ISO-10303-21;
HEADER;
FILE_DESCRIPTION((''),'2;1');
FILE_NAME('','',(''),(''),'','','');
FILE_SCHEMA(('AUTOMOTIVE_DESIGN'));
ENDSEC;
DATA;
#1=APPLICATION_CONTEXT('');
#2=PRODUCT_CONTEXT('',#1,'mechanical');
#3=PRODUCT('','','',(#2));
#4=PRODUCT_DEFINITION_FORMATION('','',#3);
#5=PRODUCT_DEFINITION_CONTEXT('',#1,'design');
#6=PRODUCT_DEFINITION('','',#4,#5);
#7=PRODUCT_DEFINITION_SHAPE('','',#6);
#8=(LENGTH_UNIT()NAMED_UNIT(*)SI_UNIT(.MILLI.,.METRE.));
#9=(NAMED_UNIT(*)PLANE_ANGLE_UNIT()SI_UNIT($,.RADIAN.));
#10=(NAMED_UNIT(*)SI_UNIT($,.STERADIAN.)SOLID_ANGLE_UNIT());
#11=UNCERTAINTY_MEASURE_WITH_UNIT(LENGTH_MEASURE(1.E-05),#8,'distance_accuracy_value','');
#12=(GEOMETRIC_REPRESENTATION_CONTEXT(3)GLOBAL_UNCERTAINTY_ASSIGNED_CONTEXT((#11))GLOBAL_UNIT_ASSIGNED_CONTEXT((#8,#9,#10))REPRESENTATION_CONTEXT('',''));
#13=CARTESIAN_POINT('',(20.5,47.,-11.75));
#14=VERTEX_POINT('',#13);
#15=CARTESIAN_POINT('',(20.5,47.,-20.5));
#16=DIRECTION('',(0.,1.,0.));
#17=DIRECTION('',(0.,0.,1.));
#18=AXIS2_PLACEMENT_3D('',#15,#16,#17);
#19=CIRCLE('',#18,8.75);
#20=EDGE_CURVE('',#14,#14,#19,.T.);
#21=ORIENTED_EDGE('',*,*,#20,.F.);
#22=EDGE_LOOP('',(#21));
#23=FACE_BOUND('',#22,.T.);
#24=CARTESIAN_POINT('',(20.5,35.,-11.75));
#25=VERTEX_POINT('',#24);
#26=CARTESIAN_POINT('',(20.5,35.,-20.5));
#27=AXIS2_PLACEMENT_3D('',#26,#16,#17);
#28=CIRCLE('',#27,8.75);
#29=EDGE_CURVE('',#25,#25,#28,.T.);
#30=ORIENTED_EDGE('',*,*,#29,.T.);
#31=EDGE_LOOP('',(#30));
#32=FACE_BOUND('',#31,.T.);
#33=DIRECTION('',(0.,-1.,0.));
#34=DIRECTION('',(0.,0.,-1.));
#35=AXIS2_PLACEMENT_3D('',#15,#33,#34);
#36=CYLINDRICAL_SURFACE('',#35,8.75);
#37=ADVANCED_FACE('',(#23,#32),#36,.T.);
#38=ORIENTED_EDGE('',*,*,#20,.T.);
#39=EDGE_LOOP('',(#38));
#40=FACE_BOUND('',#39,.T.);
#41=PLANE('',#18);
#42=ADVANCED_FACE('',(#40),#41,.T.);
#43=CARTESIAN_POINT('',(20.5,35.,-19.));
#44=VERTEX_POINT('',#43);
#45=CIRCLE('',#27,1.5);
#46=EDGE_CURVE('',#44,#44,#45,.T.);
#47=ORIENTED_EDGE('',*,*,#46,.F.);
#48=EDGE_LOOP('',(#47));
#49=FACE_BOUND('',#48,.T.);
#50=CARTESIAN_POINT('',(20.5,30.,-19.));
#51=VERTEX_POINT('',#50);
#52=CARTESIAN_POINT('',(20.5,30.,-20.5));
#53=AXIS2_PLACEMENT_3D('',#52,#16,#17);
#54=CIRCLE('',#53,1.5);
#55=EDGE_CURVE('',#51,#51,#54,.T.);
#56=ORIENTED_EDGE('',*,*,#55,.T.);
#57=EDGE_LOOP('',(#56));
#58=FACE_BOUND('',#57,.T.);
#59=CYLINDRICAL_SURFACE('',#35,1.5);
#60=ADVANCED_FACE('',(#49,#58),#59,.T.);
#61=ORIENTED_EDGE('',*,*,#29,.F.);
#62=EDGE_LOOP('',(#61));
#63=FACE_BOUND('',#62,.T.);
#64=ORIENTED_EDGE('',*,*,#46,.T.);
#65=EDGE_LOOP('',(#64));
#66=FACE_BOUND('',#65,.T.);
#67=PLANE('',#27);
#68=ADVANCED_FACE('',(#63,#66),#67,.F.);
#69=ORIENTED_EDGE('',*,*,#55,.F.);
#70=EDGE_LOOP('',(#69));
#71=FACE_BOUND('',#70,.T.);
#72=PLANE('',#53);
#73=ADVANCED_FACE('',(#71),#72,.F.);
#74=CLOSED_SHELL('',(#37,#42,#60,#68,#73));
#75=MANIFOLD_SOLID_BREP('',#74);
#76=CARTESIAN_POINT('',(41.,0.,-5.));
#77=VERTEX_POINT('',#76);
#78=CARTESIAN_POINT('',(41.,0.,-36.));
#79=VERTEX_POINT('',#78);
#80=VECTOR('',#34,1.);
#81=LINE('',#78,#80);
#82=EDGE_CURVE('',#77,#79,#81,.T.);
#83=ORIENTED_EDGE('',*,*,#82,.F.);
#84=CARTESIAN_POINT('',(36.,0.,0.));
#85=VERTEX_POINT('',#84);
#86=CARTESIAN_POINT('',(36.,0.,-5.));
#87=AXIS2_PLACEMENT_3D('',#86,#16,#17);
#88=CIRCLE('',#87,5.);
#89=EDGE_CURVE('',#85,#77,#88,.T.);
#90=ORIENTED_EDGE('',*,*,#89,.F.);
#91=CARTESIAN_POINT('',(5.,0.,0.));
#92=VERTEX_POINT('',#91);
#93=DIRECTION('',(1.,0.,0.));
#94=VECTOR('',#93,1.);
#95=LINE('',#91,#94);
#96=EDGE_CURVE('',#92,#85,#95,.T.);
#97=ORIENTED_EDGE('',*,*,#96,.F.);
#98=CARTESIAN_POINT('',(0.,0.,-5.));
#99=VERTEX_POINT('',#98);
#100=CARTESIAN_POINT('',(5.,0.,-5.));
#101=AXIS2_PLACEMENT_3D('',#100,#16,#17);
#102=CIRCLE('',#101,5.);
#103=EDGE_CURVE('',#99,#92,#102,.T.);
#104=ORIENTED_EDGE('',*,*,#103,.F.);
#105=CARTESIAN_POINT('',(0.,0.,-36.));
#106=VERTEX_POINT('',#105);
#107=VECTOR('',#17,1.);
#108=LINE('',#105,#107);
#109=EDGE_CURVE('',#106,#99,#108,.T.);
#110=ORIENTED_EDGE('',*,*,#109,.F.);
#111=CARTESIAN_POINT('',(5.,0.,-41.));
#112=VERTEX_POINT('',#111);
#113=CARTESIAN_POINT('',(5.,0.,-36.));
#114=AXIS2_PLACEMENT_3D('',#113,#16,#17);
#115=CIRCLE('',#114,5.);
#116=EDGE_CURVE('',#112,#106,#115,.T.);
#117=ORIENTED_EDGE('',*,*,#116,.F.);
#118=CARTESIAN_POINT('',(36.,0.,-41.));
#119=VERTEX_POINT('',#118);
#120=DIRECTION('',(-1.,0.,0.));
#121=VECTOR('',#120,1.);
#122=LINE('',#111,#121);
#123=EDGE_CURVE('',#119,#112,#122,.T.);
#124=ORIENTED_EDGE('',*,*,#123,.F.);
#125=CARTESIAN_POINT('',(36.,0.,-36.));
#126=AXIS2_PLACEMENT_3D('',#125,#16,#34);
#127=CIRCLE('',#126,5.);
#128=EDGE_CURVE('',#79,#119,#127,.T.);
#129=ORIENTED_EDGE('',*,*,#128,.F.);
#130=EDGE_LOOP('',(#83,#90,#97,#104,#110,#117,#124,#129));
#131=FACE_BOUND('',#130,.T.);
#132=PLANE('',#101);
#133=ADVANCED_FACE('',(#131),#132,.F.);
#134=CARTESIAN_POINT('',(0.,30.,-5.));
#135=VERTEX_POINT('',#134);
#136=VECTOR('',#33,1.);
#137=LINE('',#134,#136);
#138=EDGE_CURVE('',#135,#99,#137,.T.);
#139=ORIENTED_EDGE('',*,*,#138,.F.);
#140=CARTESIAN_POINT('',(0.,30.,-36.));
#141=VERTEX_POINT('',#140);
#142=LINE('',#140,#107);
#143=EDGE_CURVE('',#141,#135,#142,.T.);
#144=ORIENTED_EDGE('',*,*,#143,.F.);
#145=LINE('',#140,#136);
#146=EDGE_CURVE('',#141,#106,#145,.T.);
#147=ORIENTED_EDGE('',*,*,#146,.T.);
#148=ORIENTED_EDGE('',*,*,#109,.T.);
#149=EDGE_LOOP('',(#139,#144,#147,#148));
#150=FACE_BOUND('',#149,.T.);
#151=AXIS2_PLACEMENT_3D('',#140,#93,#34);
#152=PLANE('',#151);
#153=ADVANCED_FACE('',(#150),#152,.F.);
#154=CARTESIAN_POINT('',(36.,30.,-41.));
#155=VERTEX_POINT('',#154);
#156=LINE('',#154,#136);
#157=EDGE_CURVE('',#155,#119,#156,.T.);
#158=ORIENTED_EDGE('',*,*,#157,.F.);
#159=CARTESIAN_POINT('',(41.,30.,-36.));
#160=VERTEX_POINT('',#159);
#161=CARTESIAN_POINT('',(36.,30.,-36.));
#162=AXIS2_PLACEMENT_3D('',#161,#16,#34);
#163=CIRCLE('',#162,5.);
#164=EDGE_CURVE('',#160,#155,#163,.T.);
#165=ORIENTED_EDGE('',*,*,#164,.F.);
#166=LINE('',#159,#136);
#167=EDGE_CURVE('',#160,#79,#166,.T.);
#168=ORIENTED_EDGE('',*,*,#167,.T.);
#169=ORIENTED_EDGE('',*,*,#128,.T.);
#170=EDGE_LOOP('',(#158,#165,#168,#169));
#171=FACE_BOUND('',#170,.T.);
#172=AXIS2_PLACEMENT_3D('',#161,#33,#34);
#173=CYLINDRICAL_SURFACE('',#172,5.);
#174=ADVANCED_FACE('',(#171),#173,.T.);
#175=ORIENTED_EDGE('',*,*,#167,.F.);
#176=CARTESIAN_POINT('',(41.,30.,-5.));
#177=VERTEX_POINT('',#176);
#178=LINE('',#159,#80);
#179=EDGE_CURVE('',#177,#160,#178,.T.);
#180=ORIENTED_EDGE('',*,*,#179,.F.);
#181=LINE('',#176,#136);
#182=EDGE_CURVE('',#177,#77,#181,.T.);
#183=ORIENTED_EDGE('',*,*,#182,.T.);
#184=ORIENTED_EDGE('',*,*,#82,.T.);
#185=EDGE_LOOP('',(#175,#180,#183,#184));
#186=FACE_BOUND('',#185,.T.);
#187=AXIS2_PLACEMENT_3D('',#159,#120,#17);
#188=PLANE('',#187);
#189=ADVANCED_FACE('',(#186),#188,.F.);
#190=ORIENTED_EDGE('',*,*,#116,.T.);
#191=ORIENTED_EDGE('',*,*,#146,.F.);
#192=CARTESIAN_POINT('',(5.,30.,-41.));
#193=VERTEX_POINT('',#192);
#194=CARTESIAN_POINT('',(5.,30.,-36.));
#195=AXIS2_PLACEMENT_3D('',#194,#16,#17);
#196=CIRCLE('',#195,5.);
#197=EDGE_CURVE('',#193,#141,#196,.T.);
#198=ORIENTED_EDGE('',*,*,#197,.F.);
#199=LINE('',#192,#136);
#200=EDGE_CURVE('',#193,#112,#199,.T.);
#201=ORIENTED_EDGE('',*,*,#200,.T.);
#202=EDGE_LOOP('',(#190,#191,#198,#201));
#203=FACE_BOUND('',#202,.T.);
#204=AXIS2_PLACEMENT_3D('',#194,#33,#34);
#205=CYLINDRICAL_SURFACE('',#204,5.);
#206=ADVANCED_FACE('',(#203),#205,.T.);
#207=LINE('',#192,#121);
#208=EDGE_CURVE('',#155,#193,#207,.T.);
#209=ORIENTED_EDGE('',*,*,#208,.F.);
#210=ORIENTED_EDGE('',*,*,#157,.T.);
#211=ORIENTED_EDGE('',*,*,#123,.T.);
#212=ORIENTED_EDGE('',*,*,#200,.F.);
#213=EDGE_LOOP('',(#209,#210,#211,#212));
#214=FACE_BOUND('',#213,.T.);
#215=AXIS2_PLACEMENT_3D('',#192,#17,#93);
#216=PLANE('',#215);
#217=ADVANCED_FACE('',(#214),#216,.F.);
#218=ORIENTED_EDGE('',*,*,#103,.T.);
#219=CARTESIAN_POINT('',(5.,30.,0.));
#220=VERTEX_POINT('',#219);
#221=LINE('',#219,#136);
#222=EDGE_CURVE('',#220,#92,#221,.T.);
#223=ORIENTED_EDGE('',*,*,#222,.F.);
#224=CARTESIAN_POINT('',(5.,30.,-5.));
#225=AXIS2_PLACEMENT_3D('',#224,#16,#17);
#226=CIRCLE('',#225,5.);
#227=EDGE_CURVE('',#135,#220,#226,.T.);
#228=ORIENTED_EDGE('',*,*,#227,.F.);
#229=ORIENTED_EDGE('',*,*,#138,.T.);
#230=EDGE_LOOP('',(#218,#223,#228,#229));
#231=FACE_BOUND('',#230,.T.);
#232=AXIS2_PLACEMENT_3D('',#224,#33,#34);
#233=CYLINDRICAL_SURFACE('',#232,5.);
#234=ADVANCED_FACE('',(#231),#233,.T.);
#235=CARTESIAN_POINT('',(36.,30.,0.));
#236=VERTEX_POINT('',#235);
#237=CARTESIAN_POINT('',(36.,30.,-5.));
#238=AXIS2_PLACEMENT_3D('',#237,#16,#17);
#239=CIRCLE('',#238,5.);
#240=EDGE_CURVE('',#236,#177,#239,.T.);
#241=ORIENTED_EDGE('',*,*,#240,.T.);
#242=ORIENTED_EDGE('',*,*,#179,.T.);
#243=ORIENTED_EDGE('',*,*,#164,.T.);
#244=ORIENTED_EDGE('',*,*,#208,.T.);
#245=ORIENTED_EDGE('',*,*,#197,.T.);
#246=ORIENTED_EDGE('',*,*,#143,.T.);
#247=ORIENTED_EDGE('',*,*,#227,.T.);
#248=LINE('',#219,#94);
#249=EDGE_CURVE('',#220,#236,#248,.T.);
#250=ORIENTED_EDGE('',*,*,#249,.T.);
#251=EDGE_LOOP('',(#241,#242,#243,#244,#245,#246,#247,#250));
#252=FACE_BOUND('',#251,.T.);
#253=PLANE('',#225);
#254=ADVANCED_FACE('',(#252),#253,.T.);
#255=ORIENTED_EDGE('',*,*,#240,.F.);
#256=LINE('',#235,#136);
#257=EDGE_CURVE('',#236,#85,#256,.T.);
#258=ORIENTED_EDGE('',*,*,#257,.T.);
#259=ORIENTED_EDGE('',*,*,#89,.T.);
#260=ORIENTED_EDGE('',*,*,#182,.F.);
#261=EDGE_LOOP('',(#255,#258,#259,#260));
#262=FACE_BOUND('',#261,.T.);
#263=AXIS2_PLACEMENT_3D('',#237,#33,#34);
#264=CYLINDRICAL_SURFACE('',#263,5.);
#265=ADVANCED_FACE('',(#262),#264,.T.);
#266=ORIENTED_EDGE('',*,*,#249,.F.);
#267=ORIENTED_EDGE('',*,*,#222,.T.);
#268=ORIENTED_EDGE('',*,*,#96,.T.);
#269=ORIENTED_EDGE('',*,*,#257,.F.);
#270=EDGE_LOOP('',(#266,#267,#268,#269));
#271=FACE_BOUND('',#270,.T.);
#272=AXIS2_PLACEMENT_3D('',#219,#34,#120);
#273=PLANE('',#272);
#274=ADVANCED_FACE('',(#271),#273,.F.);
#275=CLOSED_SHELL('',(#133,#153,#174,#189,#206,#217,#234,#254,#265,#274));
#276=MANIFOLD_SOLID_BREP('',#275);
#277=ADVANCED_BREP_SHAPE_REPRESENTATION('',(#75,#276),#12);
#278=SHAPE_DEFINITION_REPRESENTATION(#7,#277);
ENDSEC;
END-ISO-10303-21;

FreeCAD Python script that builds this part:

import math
import FreeCAD as App
import Part
import Sketcher
from FreeCAD import Vector
Q = App.Units.Quantity

doc = App.newDocument("Part")
body = doc.addObject("PartDesign::Body", "Body")

sketch1 = body.newObject("Sketcher::SketchObject", "Sketch")
sketch1.AttachmentSupport = (doc.getObject("XZ_Plane"), [""])
sketch1.MapMode = "FlatFace"
sketch1.addGeometry([
    Part.LineSegment(Vector(36, -41, 0), Vector(5, -41, 0)),
    Part.ArcOfCircle(Part.Circle(Vector(5, -36, 0), Vector(0, 0, 1), 5), math.radians(180), math.radians(270)),
    Part.LineSegment(Vector(0, -36, 0), Vector(0, -5, 0)),
    Part.ArcOfCircle(Part.Circle(Vector(5, -5, 0), Vector(0, 0, 1), 5), math.radians(90), math.radians(180)),
    Part.LineSegment(Vector(5, 0, 0), Vector(36, 0, 0)),
    Part.ArcOfCircle(Part.Circle(Vector(36, -5, 0), Vector(0, 0, 1), 5), math.radians(0), math.radians(90)),
    Part.LineSegment(Vector(41, -5, 0), Vector(41, -36, 0)),
    Part.ArcOfCircle(Part.Circle(Vector(36, -36, 0), Vector(0, 0, 1), 5), math.radians(-90), math.radians(0)),
], False)
sketch1.addConstraint([
    Sketcher.Constraint("Tangent", 0, 2, 1, 2),
    Sketcher.Constraint("Tangent", 1, 1, 2, 1),
    Sketcher.Constraint("Tangent", 2, 2, 3, 2),
    Sketcher.Constraint("Tangent", 3, 1, 4, 1),
    Sketcher.Constraint("Tangent", 4, 2, 5, 2),
    Sketcher.Constraint("Tangent", 5, 1, 6, 1),
    Sketcher.Constraint("Tangent", 6, 2, 7, 2),
    Sketcher.Constraint("Tangent", 7, 1, 0, 1),
    Sketcher.Constraint("Horizontal", 0),
    Sketcher.Constraint("Vertical", 2),
    Sketcher.Constraint("Horizontal", 4),
    Sketcher.Constraint("Vertical", 6),
    Sketcher.Constraint("Equal", 1, 3),
    Sketcher.Constraint("Equal", 3, 5),
    Sketcher.Constraint("Equal", 5, 7),
    Sketcher.Constraint("PointOnObject", 1, 1, -2),
    Sketcher.Constraint("PointOnObject", 3, 1, -1),
    Sketcher.Constraint("Equal", 4, 2),
    Sketcher.Constraint("Radius", 1, Q("5 mm")),
    Sketcher.Constraint("DistanceX", 0, 2, 0, 1, Q("31 mm")),
])
pad1 = body.newObject("PartDesign::Pad", "Pad")
pad1.Profile = sketch1
pad1.Length = 30
pad1.Reversed = True
body2 = doc.addObject("PartDesign::Body", "Body001")

sketch2 = body2.newObject("Sketcher::SketchObject", "Sketch001")
sketch2.AttachmentSupport = (doc.getObject("XZ_Plane001"), [""])
sketch2.MapMode = "FlatFace"
sketch2.AttachmentOffset = App.Placement(Vector(0, 0, -30), App.Rotation())
sketch2.addGeometry(Part.Circle(Vector(20.5, -20.5, 0), Vector(0, 0, 1), 1.5), False)
sketch2.addConstraint([
    Sketcher.Constraint("Diameter", 0, Q("3 mm")),
    Sketcher.Constraint("DistanceX", -1, 1, 0, 3, Q("20.5 mm")),
    Sketcher.Constraint("DistanceY", 0, 3, -1, 1, Q("20.5 mm")),
])
pad2 = body2.newObject("PartDesign::Pad", "Pad001")
pad2.Profile = sketch2
pad2.Length = 17
pad2.Reversed = True

sketch3 = body2.newObject("Sketcher::SketchObject", "Sketch002")
sketch3.AttachmentSupport = (doc.getObject("XZ_Plane001"), [""])
sketch3.MapMode = "FlatFace"
sketch3.AttachmentOffset = App.Placement(Vector(0, 0, -35), App.Rotation())
sketch3.addGeometry(Part.Circle(Vector(20.5, -20.5, 0), Vector(0, 0, 1), 8.75), False)
sketch3.addConstraint([
    Sketcher.Constraint("Diameter", 0, Q("17.5 mm")),
    Sketcher.Constraint("DistanceX", -1, 1, 0, 3, Q("20.5 mm")),
    Sketcher.Constraint("DistanceY", 0, 3, -1, 1, Q("20.5 mm")),
])
pad3 = body2.newObject("PartDesign::Pad", "Pad002")
pad3.Profile = sketch3
pad3.Length = 12
pad3.Reversed = True

doc.recompute()
